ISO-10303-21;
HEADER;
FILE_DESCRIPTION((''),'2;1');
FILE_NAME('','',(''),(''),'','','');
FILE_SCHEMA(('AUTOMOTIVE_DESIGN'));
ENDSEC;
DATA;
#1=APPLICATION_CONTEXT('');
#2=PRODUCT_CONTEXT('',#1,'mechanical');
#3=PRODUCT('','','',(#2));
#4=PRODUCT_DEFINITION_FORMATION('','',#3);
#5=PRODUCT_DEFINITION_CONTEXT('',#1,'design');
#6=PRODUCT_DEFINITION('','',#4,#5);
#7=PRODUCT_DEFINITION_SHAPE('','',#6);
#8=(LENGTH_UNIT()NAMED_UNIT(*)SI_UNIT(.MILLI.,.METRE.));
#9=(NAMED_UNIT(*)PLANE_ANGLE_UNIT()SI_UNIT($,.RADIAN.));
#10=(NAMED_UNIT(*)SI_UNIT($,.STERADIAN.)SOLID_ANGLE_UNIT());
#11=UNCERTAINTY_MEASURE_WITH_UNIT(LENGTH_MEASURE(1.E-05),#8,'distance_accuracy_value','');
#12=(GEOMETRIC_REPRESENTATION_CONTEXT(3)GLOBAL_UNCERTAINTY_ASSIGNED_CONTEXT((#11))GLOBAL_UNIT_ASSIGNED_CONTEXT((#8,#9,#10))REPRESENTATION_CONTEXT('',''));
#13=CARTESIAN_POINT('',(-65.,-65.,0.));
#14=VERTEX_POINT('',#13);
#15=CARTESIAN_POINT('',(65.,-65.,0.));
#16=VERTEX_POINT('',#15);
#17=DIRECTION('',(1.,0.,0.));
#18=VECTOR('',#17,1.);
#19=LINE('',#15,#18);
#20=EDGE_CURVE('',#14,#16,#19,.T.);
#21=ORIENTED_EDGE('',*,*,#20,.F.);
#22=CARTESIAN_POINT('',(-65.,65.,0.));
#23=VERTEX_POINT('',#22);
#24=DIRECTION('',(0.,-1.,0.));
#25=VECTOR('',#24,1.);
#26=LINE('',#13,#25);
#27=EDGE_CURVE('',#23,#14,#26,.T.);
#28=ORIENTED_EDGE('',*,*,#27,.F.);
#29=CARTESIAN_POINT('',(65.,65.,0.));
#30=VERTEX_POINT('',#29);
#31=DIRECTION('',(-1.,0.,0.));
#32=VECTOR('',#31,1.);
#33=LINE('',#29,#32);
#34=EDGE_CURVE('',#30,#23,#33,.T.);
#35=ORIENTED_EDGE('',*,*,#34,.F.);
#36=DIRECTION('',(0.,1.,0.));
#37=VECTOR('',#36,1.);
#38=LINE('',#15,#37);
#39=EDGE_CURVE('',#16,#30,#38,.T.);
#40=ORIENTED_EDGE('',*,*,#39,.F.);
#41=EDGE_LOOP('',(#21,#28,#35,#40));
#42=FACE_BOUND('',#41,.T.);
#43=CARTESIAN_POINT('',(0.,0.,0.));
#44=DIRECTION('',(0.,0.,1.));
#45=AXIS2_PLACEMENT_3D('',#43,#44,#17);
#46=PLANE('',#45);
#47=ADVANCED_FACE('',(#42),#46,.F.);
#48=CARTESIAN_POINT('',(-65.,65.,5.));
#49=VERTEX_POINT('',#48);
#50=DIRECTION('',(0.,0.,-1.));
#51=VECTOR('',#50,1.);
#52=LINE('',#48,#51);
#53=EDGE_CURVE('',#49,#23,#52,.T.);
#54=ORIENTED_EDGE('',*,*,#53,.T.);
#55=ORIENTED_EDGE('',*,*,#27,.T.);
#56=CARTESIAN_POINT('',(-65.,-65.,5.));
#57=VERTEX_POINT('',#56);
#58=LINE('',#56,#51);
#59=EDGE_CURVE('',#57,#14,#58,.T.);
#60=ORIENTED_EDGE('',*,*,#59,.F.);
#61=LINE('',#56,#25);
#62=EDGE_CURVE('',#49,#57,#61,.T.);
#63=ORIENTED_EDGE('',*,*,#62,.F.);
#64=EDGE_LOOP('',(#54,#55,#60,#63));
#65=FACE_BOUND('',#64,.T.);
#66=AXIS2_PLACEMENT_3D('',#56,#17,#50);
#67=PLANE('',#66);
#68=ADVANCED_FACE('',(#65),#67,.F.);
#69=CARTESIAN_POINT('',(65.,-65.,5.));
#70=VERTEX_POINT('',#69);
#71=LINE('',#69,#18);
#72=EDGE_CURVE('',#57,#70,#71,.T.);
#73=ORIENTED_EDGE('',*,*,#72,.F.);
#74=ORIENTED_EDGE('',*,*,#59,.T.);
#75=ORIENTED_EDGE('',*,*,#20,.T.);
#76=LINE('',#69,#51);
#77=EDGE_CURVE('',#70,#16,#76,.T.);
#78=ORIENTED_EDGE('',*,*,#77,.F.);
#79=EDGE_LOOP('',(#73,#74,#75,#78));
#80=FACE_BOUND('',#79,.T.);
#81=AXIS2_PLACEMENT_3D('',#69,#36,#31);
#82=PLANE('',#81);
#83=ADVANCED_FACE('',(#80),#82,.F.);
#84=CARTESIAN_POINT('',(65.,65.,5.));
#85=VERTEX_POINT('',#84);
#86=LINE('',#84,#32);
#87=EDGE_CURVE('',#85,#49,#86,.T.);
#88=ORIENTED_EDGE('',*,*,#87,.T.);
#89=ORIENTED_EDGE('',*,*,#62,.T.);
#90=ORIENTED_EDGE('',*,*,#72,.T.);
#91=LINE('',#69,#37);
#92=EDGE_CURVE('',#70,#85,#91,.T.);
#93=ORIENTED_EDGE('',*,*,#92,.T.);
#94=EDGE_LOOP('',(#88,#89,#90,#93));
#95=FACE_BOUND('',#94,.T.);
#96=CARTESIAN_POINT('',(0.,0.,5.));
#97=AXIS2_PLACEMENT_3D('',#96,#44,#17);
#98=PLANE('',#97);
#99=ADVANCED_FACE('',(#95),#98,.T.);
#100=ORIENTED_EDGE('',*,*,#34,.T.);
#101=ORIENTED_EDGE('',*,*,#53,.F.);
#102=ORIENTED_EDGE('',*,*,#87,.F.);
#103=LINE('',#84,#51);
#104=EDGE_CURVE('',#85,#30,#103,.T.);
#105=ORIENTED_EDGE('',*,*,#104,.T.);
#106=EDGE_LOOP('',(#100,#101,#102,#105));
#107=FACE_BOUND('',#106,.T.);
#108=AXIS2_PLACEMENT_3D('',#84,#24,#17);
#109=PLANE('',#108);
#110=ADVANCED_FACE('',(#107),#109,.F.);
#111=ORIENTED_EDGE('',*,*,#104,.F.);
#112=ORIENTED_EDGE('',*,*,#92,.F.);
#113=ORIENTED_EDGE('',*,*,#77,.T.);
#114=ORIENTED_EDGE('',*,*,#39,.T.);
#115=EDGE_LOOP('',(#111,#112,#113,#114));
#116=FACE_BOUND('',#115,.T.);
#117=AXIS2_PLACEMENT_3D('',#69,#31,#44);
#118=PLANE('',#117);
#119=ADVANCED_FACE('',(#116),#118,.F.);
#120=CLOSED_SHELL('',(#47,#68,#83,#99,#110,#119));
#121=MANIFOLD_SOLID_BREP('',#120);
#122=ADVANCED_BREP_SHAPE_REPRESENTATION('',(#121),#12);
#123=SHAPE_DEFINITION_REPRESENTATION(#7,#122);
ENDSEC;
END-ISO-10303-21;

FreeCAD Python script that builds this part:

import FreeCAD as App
import Part
import Sketcher
from FreeCAD import Vector
Q = App.Units.Quantity


def add_polygon(sketch, points):
    """Adds a closed chain of lines whose ends are joined by coincident constraints."""
    first, n = sketch.GeometryCount, len(points)
    for a, b in zip(points, points[1:] + points[:1]):
        sketch.addGeometry(Part.LineSegment(App.Vector(*a, 0), App.Vector(*b, 0)), False)
    for i in range(n):
        sketch.addConstraint(Sketcher.Constraint("Coincident", first + i, 2, first + (i + 1) % n, 1))

doc = App.newDocument("Part")
body = doc.addObject("PartDesign::Body", "Body")

# Sketch on XY plane
sketch1 = doc.addObject("Sketcher::SketchObject", "Sketch")
body.addObject(sketch1)
sketch1.AttachmentSupport = (doc.XY_Plane, [""])
sketch1.MapMode = "FlatFace"
add_polygon(sketch1, [(-65, 65), (-65, -65), (65, -65), (65, 65)])  # lines 0-3
sketch1.addConstraint(Sketcher.Constraint("Vertical", 0))
sketch1.addConstraint(Sketcher.Constraint("Horizontal", 1))
sketch1.addConstraint(Sketcher.Constraint("Vertical", 2))
sketch1.addConstraint(Sketcher.Constraint("Horizontal", 3))
sketch1.addConstraint(Sketcher.Constraint("Symmetric", 0, 2, 2, 2, -1, 1))
sketch1.addConstraint(Sketcher.Constraint("Equal", 3, 0))
sketch1.addConstraint(Sketcher.Constraint("DistanceX", 1, 1, 1, 2, Q("130 mm")))
pad1 = doc.addObject("PartDesign::Pad", "Pad")
body.addObject(pad1)
pad1.Profile = sketch1
pad1.Length = 5

doc.recompute()
